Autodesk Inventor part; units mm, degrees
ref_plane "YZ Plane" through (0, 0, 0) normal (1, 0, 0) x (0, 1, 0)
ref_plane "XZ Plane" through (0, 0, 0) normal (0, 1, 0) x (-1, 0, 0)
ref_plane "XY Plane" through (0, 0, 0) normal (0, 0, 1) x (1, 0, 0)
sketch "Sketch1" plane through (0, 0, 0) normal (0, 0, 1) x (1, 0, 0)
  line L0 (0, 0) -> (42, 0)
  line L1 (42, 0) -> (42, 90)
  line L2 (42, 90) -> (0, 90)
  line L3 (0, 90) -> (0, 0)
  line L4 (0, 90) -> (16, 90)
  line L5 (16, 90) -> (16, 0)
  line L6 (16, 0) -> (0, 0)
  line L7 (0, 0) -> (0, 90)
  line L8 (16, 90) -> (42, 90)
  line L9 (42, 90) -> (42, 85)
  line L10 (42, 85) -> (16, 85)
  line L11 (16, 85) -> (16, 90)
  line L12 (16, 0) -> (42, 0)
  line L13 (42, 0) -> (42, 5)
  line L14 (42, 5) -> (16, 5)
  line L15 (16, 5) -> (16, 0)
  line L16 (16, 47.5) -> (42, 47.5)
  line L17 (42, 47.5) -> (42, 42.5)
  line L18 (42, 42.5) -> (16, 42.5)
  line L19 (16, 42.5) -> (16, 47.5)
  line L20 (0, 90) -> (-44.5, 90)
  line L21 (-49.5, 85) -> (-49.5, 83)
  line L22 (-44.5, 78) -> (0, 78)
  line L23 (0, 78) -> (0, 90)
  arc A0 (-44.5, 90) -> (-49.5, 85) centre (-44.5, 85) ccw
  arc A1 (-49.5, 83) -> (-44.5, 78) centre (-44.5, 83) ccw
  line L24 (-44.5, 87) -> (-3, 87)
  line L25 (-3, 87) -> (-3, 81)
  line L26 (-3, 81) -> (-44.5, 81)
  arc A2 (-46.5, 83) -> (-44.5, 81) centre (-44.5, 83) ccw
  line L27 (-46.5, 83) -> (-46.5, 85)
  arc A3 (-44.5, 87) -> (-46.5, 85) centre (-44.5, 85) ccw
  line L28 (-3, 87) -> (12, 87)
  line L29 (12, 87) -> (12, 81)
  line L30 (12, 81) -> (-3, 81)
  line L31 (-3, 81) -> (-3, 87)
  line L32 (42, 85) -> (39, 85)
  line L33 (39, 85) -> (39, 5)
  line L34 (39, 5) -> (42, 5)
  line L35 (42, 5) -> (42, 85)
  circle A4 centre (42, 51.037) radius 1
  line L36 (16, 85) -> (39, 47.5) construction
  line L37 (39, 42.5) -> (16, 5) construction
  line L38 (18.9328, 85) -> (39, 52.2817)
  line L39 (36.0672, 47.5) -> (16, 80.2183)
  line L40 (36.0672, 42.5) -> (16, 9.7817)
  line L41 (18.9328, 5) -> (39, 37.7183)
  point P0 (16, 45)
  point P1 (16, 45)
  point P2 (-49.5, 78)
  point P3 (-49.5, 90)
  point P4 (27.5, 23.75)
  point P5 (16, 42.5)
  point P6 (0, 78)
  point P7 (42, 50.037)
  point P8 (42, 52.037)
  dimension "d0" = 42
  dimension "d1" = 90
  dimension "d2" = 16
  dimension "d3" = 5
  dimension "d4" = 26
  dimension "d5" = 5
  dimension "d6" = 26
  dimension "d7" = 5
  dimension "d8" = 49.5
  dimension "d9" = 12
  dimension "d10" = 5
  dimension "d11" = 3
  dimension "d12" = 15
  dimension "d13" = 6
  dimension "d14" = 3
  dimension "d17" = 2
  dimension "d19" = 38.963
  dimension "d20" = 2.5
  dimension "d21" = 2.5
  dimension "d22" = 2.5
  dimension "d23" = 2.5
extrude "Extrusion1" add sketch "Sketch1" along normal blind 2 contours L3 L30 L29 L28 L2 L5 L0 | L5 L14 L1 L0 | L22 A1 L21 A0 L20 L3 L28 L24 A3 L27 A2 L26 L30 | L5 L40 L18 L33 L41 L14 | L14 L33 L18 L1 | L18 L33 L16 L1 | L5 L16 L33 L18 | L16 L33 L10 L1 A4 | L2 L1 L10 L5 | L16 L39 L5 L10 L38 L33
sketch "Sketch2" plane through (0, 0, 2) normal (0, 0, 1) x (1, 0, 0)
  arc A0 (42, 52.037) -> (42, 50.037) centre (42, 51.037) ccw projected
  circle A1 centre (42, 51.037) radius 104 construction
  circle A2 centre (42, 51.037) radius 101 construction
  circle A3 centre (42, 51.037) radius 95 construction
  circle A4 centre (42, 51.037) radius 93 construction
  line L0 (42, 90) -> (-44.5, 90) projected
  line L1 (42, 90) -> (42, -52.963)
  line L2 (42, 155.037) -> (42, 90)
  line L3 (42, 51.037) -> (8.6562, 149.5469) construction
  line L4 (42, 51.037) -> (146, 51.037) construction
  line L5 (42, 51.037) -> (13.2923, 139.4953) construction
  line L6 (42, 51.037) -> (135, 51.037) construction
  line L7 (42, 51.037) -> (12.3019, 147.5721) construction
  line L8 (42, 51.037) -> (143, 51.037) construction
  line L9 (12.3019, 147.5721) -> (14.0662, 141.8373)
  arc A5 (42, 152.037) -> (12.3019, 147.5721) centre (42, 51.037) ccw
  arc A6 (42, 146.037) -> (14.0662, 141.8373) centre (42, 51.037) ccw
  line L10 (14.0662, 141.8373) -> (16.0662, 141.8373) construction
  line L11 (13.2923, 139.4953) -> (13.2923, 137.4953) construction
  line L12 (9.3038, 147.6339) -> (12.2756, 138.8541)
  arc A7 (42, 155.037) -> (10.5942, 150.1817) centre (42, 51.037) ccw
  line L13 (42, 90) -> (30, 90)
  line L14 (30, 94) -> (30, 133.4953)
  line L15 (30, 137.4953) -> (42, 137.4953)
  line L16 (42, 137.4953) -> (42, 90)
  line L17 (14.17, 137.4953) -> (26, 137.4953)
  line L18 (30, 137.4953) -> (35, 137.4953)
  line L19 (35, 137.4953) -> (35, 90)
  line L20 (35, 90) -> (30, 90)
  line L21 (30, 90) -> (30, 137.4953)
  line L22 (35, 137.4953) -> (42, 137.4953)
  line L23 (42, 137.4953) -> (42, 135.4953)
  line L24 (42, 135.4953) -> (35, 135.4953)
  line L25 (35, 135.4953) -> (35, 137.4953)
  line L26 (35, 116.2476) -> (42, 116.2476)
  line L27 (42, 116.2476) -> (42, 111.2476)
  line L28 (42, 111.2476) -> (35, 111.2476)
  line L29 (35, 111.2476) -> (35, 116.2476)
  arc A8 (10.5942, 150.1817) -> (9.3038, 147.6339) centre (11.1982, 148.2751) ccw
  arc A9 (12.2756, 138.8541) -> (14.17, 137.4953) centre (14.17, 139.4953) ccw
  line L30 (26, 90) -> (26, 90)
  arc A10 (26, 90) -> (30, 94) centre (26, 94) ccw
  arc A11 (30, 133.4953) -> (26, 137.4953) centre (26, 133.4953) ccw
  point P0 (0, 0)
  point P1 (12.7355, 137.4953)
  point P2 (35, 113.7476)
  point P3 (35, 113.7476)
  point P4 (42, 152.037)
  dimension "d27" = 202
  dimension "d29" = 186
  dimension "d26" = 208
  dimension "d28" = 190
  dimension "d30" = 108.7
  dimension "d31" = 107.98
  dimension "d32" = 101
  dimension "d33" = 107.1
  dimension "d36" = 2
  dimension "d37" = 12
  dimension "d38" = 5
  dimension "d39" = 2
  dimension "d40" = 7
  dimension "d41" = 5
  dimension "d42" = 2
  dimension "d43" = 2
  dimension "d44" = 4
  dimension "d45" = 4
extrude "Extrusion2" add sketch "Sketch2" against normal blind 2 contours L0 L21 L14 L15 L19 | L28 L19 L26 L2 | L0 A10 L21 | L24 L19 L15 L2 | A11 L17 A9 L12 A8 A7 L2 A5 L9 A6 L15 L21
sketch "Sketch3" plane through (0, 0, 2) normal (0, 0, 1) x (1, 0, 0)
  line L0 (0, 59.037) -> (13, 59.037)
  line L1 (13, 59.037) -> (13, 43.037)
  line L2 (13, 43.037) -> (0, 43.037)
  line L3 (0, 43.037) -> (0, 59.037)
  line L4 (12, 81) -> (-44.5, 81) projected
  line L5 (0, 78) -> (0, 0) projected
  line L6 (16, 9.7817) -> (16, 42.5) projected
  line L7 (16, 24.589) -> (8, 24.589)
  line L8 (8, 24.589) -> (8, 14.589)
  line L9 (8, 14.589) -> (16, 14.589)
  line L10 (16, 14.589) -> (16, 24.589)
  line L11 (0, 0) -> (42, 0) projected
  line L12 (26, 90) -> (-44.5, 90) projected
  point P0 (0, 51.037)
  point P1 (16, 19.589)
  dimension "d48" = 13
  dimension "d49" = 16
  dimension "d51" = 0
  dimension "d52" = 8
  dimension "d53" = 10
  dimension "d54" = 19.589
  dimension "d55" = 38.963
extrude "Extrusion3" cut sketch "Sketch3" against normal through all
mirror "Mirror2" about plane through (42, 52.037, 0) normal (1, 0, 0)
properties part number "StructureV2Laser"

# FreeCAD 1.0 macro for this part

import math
import FreeCAD as App
import Part
import Sketcher

V = App.Vector
Q = App.Units.Quantity


def add_polygon(sketch, points):
    """Adds a closed chain of lines whose ends are joined by coincident constraints."""
    first, n = sketch.GeometryCount, len(points)
    for a, b in zip(points, points[1:] + points[:1]):
        sketch.addGeometry(Part.LineSegment(App.Vector(*a, 0), App.Vector(*b, 0)), False)
    for i in range(n):
        sketch.addConstraint(Sketcher.Constraint("Coincident", first + i, 2, first + (i + 1) % n, 1))

doc = App.newDocument("Part")
body = doc.addObject("PartDesign::Body", "Body")

sketch1 = doc.addObject("Sketcher::SketchObject", "Sketch")
body.addObject(sketch1)
sketch1.AttachmentSupport = (doc.XY_Plane, [""])
sketch1.MapMode = "FlatFace"
sketch1.addGeometry(Part.LineSegment(V(0, 78, 0), V(0, 0, 0)), False)
sketch1.addGeometry(Part.LineSegment(V(0, 0, 0), V(42, 0, 0)), False)
sketch1.addGeometry(Part.LineSegment(V(42, 0, 0), V(42, 50, 0)), False)
sketch1.addGeometry(Part.ArcOfCircle(Part.Circle(V(42, 51, 0), V(0, 0, 1), 1), math.radians(90), math.radians(270)), False)
sketch1.addGeometry(Part.LineSegment(V(42, 52, 0), V(42, 90, 0)), False)
sketch1.addGeometry(Part.LineSegment(V(42, 90, 0), V(-44.5, 90, 0)), False)
sketch1.addGeometry(Part.ArcOfCircle(Part.Circle(V(-44.5, 85, 0), V(0, 0, 1), 5), math.radians(90), math.radians(180)), False)
sketch1.addGeometry(Part.LineSegment(V(-49.5, 85, 0), V(-49.5, 83, 0)), False)
sketch1.addGeometry(Part.ArcOfCircle(Part.Circle(V(-44.5, 83, 0), V(0, 0, 1), 5), math.radians(180), math.radians(270)), False)
sketch1.addGeometry(Part.LineSegment(V(-44.5, 78, 0), V(0, 78, 0)), False)
sketch1.addGeometry(Part.LineSegment(V(12, 81, 0), V(-44.5, 81, 0)), False)
sketch1.addGeometry(Part.ArcOfCircle(Part.Circle(V(-44.5, 83, 0), V(0, 0, 1), 2), math.radians(180), math.radians(270)), False)
sketch1.addGeometry(Part.LineSegment(V(-46.5, 83, 0), V(-46.5, 85, 0)), False)
sketch1.addGeometry(Part.ArcOfCircle(Part.Circle(V(-44.5, 85, 0), V(0, 0, 1), 2), math.radians(90), math.radians(180)), False)
sketch1.addGeometry(Part.LineSegment(V(-44.5, 87, 0), V(12, 87, 0)), False)
sketch1.addGeometry(Part.LineSegment(V(12, 87, 0), V(12, 81, 0)), False)
add_polygon(sketch1, [(16, 47.5), (16, 80.2), (36.1, 47.5)])
add_polygon(sketch1, [(16, 9.8), (16, 42.5), (36.1, 42.5)])
add_polygon(sketch1, [(18.9, 85), (39, 85), (39, 52.3)])
add_polygon(sketch1, [(18.9, 5), (39, 37.7), (39, 5)])
sketch1.addConstraint(Sketcher.Constraint("Coincident", 0, 2, 1, 1))
sketch1.addConstraint(Sketcher.Constraint("Coincident", 1, 2, 2, 1))
sketch1.addConstraint(Sketcher.Constraint("Coincident", 2, 2, 3, 2))
sketch1.addConstraint(Sketcher.Constraint("Coincident", 3, 1, 4, 1))
sketch1.addConstraint(Sketcher.Constraint("Coincident", 4, 2, 5, 1))
sketch1.addConstraint(Sketcher.Constraint("Tangent", 5, 2, 6, 1))
sketch1.addConstraint(Sketcher.Constraint("Tangent", 6, 2, 7, 1))
sketch1.addConstraint(Sketcher.Constraint("Tangent", 7, 2, 8, 1))
sketch1.addConstraint(Sketcher.Constraint("Tangent", 8, 2, 9, 1))
sketch1.addConstraint(Sketcher.Constraint("Coincident", 9, 2, 0, 1))
sketch1.addConstraint(Sketcher.Constraint("Tangent", 10, 2, 11, 2))
sketch1.addConstraint(Sketcher.Constraint("Tangent", 11, 1, 12, 1))
sketch1.addConstraint(Sketcher.Constraint("Tangent", 12, 2, 13, 2))
sketch1.addConstraint(Sketcher.Constraint("Tangent", 13, 1, 14, 1))
sketch1.addConstraint(Sketcher.Constraint("Coincident", 14, 2, 15, 1))
sketch1.addConstraint(Sketcher.Constraint("Coincident", 15, 2, 10, 1))
sketch1.addConstraint(Sketcher.Constraint("Vertical", 0))
sketch1.addConstraint(Sketcher.Constraint("Horizontal", 1))
sketch1.addConstraint(Sketcher.Constraint("Vertical", 2))
sketch1.addConstraint(Sketcher.Constraint("Vertical", 4))
sketch1.addConstraint(Sketcher.Constraint("Horizontal", 5))
sketch1.addConstraint(Sketcher.Constraint("Vertical", 7))
sketch1.addConstraint(Sketcher.Constraint("Horizontal", 9))
sketch1.addConstraint(Sketcher.Constraint("Horizontal", 10))
sketch1.addConstraint(Sketcher.Constraint("Vertical", 12))
sketch1.addConstraint(Sketcher.Constraint("Horizontal", 14))
sketch1.addConstraint(Sketcher.Constraint("Vertical", 15))
sketch1.addConstraint(Sketcher.Constraint("Vertical", 16))
sketch1.addConstraint(Sketcher.Constraint("Horizontal", 18))
sketch1.addConstraint(Sketcher.Constraint("Vertical", 19))
sketch1.addConstraint(Sketcher.Constraint("Horizontal", 20))
sketch1.addConstraint(Sketcher.Constraint("Horizontal", 22))
sketch1.addConstraint(Sketcher.Constraint("Vertical", 23))
sketch1.addConstraint(Sketcher.Constraint("Vertical", 26))
sketch1.addConstraint(Sketcher.Constraint("Horizontal", 27))
sketch1.addConstraint(Sketcher.Constraint("Coincident", 0, 2, -1, 1))
sketch1.addConstraint(Sketcher.Constraint("Coincident", 11, 3, 8, 3))
sketch1.addConstraint(Sketcher.Constraint("Coincident", 13, 3, 6, 3))
sketch1.addConstraint(Sketcher.Constraint("Equal", 6, 8))
sketch1.addConstraint(Sketcher.Constraint("Parallel", 17, 24))
sketch1.addConstraint(Sketcher.Constraint("Parallel", 21, 25))
sketch1.addConstraint(Sketcher.Constraint("Horizontal", 12, 2, 22, 2))
sketch1.addConstraint(Sketcher.Constraint("Vertical", 3, 3, 1, 2))
sketch1.addConstraint(Sketcher.Constraint("Vertical", 2, 2, 3, 1))
sketch1.addConstraint(Sketcher.Constraint("Vertical", 18, 2, 19, 2))
sketch1.addConstraint(Sketcher.Constraint("Vertical", 17, 2, 20, 2))
sketch1.addConstraint(Sketcher.Constraint("Vertical", 23, 2, 25, 2))
sketch1.addConstraint(Sketcher.Constraint("Vertical", 24, 2, 27, 2))
sketch1.addConstraint(Sketcher.Constraint("Equal", 20, 22))
sketch1.addConstraint(Sketcher.Constraint("Equal", 16, 19))
sketch1.addConstraint(Sketcher.Constraint("Radius", 3, 1.0))
sketch1.addConstraint(Sketcher.Constraint("Radius", 6, 5.0))
sketch1.addConstraint(Sketcher.Constraint("Radius", 11, 2.0))
sketch1.addConstraint(Sketcher.Constraint("DistanceX", 1, 1, 1, 2, 42.0))
sketch1.addConstraint(Sketcher.Constraint("DistanceY", 7, 2, 7, 1, 2.0))
sketch1.addConstraint(Sketcher.Constraint("DistanceY", -1, 1, 4, 2, 90.0))
sketch1.addConstraint(Sketcher.Constraint("DistanceX", -1, 1, 14, 2, 12.0))
sketch1.addConstraint(Sketcher.Constraint("DistanceX", -1, 1, 16, 2, 16.0))
sketch1.addConstraint(Sketcher.Constraint("DistanceY", -1, 1, 26, 2, 5.0))
sketch1.addConstraint(Sketcher.Constraint("DistanceY", 19, 2, 18, 2, 5.0))
sketch1.addConstraint(Sketcher.Constraint("DistanceX", 22, 2, 4, 2, 3.0))
sketch1.addConstraint(Sketcher.Constraint("DistanceX", 6, 2, -1, 1, 49.5))
sketch1.addConstraint(Sketcher.Constraint("DistanceY", 3, 3, 4, 2, 38.963))
sketch1.addConstraint(Sketcher.Constraint("DistanceY", -1, 1, 17, 2, 47.5))
sketch1.addConstraint(Sketcher.Constraint("Distance", 17, 38.382))
sketch1.addConstraint(Sketcher.Constraint("DistanceX", 18, 2, 18, 1, 20.0672))
pad1 = doc.addObject("PartDesign::Pad", "Pad")
body.addObject(pad1)
pad1.Profile = sketch1
pad1.Length = 2

sketch2 = doc.addObject("Sketcher::SketchObject", "Sketch001")
body.addObject(sketch2)
sketch2.AttachmentSupport = (doc.XY_Plane, [""])
sketch2.MapMode = "FlatFace"
sketch2.AttachmentOffset = App.Placement(V(0, 0, 2), App.Rotation())
sketch2.addGeometry(Part.LineSegment(V(35, 90, 0), V(35, 111.2, 0)), False)
sketch2.addGeometry(Part.LineSegment(V(35, 111.2, 0), V(42, 111.2, 0)), False)
sketch2.addGeometry(Part.LineSegment(V(42, 111.2, 0), V(42, 116.2, 0)), False)
sketch2.addGeometry(Part.LineSegment(V(42, 116.2, 0), V(35, 116.2, 0)), False)
sketch2.addGeometry(Part.LineSegment(V(35, 116.2, 0), V(35, 135.5, 0)), False)
sketch2.addGeometry(Part.LineSegment(V(35, 135.5, 0), V(42, 135.5, 0)), False)
sketch2.addGeometry(Part.LineSegment(V(42, 135.5, 0), V(42, 146, 0)), False)
sketch2.addGeometry(Part.ArcOfCircle(Part.Circle(V(42, 51, 0), V(0, 0, 1), 95), math.radians(90), math.radians(107.1)), False)
sketch2.addGeometry(Part.LineSegment(V(14.1, 141.8, 0), V(12.3, 147.6, 0)), False)
sketch2.addGeometry(Part.ArcOfCircle(Part.Circle(V(42, 51, 0), V(0, 0, 1), 101), math.radians(90), math.radians(107.1)), False)
sketch2.addGeometry(Part.LineSegment(V(42, 152, 0), V(42, 155, 0)), False)
sketch2.addGeometry(Part.ArcOfCircle(Part.Circle(V(42, 51, 0), V(0, 0, 1), 104), math.radians(90), math.radians(107.58)), False)
sketch2.addGeometry(Part.ArcOfCircle(Part.Circle(V(11.2, 148.3, 0), V(0, 0, 1), 2), math.radians(108), math.radians(199)), False)
sketch2.addGeometry(Part.LineSegment(V(9.3, 147.6, 0), V(12.3, 138.9, 0)), False)
sketch2.addGeometry(Part.ArcOfCircle(Part.Circle(V(14.2, 139.5, 0), V(0, 0, 1), 2), math.radians(-161), math.radians(-90)), False)
sketch2.addGeometry(Part.LineSegment(V(14.2, 137.5, 0), V(26, 137.5, 0)), False)
sketch2.addGeometry(Part.ArcOfCircle(Part.Circle(V(26, 133.5, 0), V(0, 0, 1), 4), math.radians(0), math.radians(90)), False)
sketch2.addGeometry(Part.LineSegment(V(30, 133.5, 0), V(30, 94, 0)), False)
sketch2.addGeometry(Part.ArcOfCircle(Part.Circle(V(26, 94, 0), V(0, 0, 1), 4), math.radians(-90), math.radians(0)), False)
sketch2.addGeometry(Part.LineSegment(V(26, 90, 0), V(35, 90, 0)), False)
sketch2.addConstraint(Sketcher.Constraint("Coincident", 0, 2, 1, 1))
sketch2.addConstraint(Sketcher.Constraint("Coincident", 1, 2, 2, 1))
sketch2.addConstraint(Sketcher.Constraint("Coincident", 2, 2, 3, 1))
sketch2.addConstraint(Sketcher.Constraint("Coincident", 3, 2, 4, 1))
sketch2.addConstraint(Sketcher.Constraint("Coincident", 4, 2, 5, 1))
sketch2.addConstraint(Sketcher.Constraint("Coincident", 5, 2, 6, 1))
sketch2.addConstraint(Sketcher.Constraint("Coincident", 6, 2, 7, 1))
sketch2.addConstraint(Sketcher.Constraint("Coincident", 7, 2, 8, 1))
sketch2.addConstraint(Sketcher.Constraint("Coincident", 8, 2, 9, 2))
sketch2.addConstraint(Sketcher.Constraint("Coincident", 9, 1, 10, 1))
sketch2.addConstraint(Sketcher.Constraint("Coincident", 10, 2, 11, 1))
sketch2.addConstraint(Sketcher.Constraint("Tangent", 11, 2, 12, 1))
sketch2.addConstraint(Sketcher.Constraint("Tangent", 12, 2, 13, 1))
sketch2.addConstraint(Sketcher.Constraint("Tangent", 13, 2, 14, 1))
sketch2.addConstraint(Sketcher.Constraint("Tangent", 14, 2, 15, 1))
sketch2.addConstraint(Sketcher.Constraint("Tangent", 15, 2, 16, 2))
sketch2.addConstraint(Sketcher.Constraint("Tangent", 16, 1, 17, 1))
sketch2.addConstraint(Sketcher.Constraint("Tangent", 17, 2, 18, 2))
sketch2.addConstraint(Sketcher.Constraint("Tangent", 18, 1, 19, 1))
sketch2.addConstraint(Sketcher.Constraint("Coincident", 19, 2, 0, 1))
sketch2.addConstraint(Sketcher.Constraint("Vertical", 0))
sketch2.addConstraint(Sketcher.Constraint("Horizontal", 1))
sketch2.addConstraint(Sketcher.Constraint("Vertical", 2))
sketch2.addConstraint(Sketcher.Constraint("Horizontal", 3))
sketch2.addConstraint(Sketcher.Constraint("Vertical", 4))
sketch2.addConstraint(Sketcher.Constraint("Horizontal", 5))
sketch2.addConstraint(Sketcher.Constraint("Vertical", 6))
sketch2.addConstraint(Sketcher.Constraint("Vertical", 10))
sketch2.addConstraint(Sketcher.Constraint("Horizontal", 15))
sketch2.addConstraint(Sketcher.Constraint("Vertical", 17))
sketch2.addConstraint(Sketcher.Constraint("Horizontal", 19))
sketch2.addConstraint(Sketcher.Constraint("Coincident", 11, 3, 9, 3))
sketch2.addConstraint(Sketcher.Constraint("Equal", 12, 14))
sketch2.addConstraint(Sketcher.Constraint("Equal", 16, 18))
sketch2.addConstraint(Sketcher.Constraint("Vertical", 7, 3, 9, 3))
sketch2.addConstraint(Sketcher.Constraint("Vertical", 11, 3, 1, 2))
sketch2.addConstraint(Sketcher.Constraint("Vertical", 0, 2, 3, 2))
sketch2.addConstraint(Sketcher.Constraint("Vertical", 2, 2, 5, 2))
sketch2.addConstraint(Sketcher.Constraint("Vertical", 6, 2, 9, 1))
sketch2.addConstraint(Sketcher.Constraint("Radius", 9, 101.0))
sketch2.addConstraint(Sketcher.Constraint("Radius", 11, 104.0))
sketch2.addConstraint(Sketcher.Constraint("Radius", 12, 2.0))
sketch2.addConstraint(Sketcher.Constraint("Radius", 16, 4.0))
sketch2.addConstraint(Sketcher.Constraint("DistanceX", 1, 1, 1, 2, 7.0))
sketch2.addConstraint(Sketcher.Constraint("DistanceY", 2, 1, 2, 2, 5.0))
sketch2.addConstraint(Sketcher.Constraint("Angle", 8, Q("107.1004 deg")))
sketch2.addConstraint(Sketcher.Constraint("DistanceY", 16, 3, 4, 2, 2.0))
sketch2.addConstraint(Sketcher.Constraint("DistanceX", 16, 1, 4, 2, 5.0))
sketch2.addConstraint(Sketcher.Constraint("Distance", 8, 6.0))
sketch2.addConstraint(Sketcher.Constraint("DistanceX", -1, 1, 9, 3, 42.0))
sketch2.addConstraint(Sketcher.Constraint("DistanceY", -1, 1, 18, 3, 94.0))
sketch2.addConstraint(Sketcher.Constraint("Angle", 13, Q("-71.3 deg")))
sketch2.addConstraint(Sketcher.Constraint("Radius", 7, 94.998))
sketch2.addConstraint(Sketcher.Constraint("DistanceX", 15, 1, 15, 2, 11.83))
sketch2.addConstraint(Sketcher.Constraint("Distance", 13, 9.269))
sketch2.addConstraint(Sketcher.Constraint("DistanceY", 0, 1, 0, 2, 21.2476))
sketch2.addConstraint(Sketcher.Constraint("DistanceY", 4, 1, 4, 2, 19.2477))
sketch2.addConstraint(Sketcher.Constraint("DistanceX", -1, 1, 8, 2, 12.302))
pad2 = doc.addObject("PartDesign::Pad", "Pad001")
body.addObject(pad2)
pad2.Profile = sketch2
pad2.Length = 2
pad2.Reversed = True

sketch3 = doc.addObject("Sketcher::SketchObject", "Sketch002")
body.addObject(sketch3)
sketch3.AttachmentSupport = (doc.XY_Plane, [""])
sketch3.MapMode = "FlatFace"
sketch3.AttachmentOffset = App.Placement(V(0, 0, 2), App.Rotation())
add_polygon(sketch3, [(13, 59), (0, 59), (0, 43), (13, 43)])
add_polygon(sketch3, [(8, 15), (16, 15), (16, 25), (8, 25)])
sketch3.addConstraint(Sketcher.Constraint("Horizontal", 0))
sketch3.addConstraint(Sketcher.Constraint("Vertical", 1))
sketch3.addConstraint(Sketcher.Constraint("Horizontal", 2))
sketch3.addConstraint(Sketcher.Constraint("Vertical", 3))
sketch3.addConstraint(Sketcher.Constraint("Horizontal", 4))
sketch3.addConstraint(Sketcher.Constraint("Vertical", 5))
sketch3.addConstraint(Sketcher.Constraint("Horizontal", 6))
sketch3.addConstraint(Sketcher.Constraint("Vertical", 7))
sketch3.addConstraint(Sketcher.Constraint("PointOnObject", 0, 2, -2))
sketch3.addConstraint(Sketcher.Constraint("DistanceX", 0, 2, 0, 1, 13.0))
sketch3.addConstraint(Sketcher.Constraint("DistanceX", 4, 1, 4, 2, 8.0))
sketch3.addConstraint(Sketcher.Constraint("DistanceY", 1, 2, 1, 1, 16.0))
sketch3.addConstraint(Sketcher.Constraint("DistanceY", 5, 1, 5, 2, 10.0))
sketch3.addConstraint(Sketcher.Constraint("DistanceX", -1, 1, 4, 2, 16.0))
sketch3.addConstraint(Sketcher.Constraint("DistanceY", -1, 1, 0, 2, 59.037))
sketch3.addConstraint(Sketcher.Constraint("DistanceY", -1, 1, 4, 2, 14.589))
pocket1 = doc.addObject("PartDesign::Pocket", "Pocket")
body.addObject(pocket1)
pocket1.Profile = sketch3
pocket1.Type = "ThroughAll"
doc.recompute()

datumplane = doc.addObject("PartDesign::Plane", "DatumPlane")
body.addObject(datumplane)
datumplane.AttachmentSupport = (doc.YZ_Plane, [""])
datumplane.MapMode = "FlatFace"
datumplane.AttachmentOffset = App.Placement(V(0, 0, 42), App.Rotation())
mirrored = doc.addObject("PartDesign::Mirrored", "Mirrored")
body.addObject(mirrored)
mirrored.TransformMode = "Transform body"
mirrored.MirrorPlane = (datumplane, [""])
body.Tip = mirrored

doc.recompute()
